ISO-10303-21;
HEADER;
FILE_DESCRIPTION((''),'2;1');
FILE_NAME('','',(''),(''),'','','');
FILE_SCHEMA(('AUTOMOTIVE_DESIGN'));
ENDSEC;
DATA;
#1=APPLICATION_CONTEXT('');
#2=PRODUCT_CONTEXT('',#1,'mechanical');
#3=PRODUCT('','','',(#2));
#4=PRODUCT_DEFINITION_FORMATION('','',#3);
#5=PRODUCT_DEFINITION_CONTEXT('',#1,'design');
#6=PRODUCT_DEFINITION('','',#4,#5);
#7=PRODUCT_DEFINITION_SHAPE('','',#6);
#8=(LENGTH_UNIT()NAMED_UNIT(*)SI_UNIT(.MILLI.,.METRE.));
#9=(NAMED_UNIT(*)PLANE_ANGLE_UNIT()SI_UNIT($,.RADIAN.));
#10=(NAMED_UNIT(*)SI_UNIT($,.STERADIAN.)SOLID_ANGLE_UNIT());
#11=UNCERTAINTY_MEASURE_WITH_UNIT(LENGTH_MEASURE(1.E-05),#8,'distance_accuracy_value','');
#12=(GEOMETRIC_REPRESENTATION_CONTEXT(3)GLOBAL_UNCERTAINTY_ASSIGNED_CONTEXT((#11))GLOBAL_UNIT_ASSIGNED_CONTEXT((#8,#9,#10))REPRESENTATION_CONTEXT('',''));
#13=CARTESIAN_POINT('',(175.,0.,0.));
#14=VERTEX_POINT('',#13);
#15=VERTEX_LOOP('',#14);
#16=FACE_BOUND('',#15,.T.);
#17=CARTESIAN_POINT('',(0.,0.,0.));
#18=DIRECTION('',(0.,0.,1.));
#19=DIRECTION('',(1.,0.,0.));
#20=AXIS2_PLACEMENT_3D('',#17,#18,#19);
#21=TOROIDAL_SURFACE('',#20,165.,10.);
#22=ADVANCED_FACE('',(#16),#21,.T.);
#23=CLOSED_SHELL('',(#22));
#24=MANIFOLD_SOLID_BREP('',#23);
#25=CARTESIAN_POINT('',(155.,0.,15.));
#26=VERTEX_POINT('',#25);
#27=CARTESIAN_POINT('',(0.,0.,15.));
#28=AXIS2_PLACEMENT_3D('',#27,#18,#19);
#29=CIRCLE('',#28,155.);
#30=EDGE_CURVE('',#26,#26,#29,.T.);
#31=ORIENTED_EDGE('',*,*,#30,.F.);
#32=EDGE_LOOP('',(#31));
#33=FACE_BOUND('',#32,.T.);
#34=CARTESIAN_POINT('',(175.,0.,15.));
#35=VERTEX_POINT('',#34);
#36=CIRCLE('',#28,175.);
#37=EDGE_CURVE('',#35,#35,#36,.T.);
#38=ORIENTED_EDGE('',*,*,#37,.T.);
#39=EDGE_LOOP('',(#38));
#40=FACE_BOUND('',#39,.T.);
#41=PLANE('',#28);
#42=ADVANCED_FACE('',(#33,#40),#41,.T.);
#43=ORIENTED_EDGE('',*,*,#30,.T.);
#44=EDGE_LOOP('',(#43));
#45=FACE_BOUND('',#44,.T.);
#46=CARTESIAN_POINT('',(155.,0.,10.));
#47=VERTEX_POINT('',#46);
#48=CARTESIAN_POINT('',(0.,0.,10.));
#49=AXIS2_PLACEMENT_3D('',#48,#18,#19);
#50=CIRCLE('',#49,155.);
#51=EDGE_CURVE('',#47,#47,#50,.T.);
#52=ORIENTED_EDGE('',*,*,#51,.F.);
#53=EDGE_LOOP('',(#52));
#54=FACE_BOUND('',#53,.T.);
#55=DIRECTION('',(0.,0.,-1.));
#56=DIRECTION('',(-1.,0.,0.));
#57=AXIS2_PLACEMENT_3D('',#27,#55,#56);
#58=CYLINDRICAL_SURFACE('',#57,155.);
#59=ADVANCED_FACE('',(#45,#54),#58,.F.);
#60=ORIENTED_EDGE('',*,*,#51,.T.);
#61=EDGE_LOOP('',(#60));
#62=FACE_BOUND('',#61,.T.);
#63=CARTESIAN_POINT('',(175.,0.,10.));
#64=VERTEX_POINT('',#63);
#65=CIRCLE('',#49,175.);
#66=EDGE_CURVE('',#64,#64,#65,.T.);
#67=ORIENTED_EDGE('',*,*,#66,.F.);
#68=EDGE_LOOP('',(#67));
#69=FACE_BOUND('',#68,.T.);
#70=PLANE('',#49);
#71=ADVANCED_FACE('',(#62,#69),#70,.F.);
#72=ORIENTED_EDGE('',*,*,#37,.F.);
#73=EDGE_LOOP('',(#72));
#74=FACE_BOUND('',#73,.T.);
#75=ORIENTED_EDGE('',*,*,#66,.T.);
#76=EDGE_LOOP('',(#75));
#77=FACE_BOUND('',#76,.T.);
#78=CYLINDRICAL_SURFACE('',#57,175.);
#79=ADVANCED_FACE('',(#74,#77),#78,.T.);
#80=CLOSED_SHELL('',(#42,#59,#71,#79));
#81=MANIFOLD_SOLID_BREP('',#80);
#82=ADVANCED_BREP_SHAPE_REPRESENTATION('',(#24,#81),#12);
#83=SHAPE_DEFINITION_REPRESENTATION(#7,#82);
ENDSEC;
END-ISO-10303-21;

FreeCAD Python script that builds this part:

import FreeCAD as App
import Part
import Sketcher
Q = App.Units.Quantity

doc = App.newDocument("Part")
params = doc.addObject("Spreadsheet::Sheet", "Params")
for row, (alias, value) in enumerate([
    ("sketch1_diameter", "20 mm"),
    ("revolution_angle", "360 deg"),
    ("sketch2_diameter", "350 mm"),
    ("sketch2_diameter2", "310 mm"),
    ("pad1_length", "5 mm"),
], start=1):
    params.set(f"A{row}", alias)
    params.set(f"B{row}", "=" + value)
    params.setAlias(f"B{row}", alias)

body = doc.addObject("PartDesign::Body", "Body")

# Sketch on YZ plane
sketch1 = doc.addObject("Sketcher::SketchObject", "Sketch")
body.addObject(sketch1)
sketch1.AttachmentSupport = (doc.YZ_Plane, [""])
sketch1.MapMode = "FlatFace"
sketch1.addGeometry(Part.Circle(App.Vector(165, 0, 0), App.Vector(0, 0, 1), 10), False)
sketch1.addConstraint(Sketcher.Constraint("PointOnObject", 0, 3, -1))
sketch1.addConstraint(Sketcher.Constraint("Diameter", 0, Q("20 mm")))
sketch1.addConstraint(Sketcher.Constraint("DistanceX", -1, 1, 0, 3, Q("165 mm")))
sketch1.setExpression("Constraints[1]", "Params.sketch1_diameter")
revolution = doc.addObject("PartDesign::Revolution", "Revolution")
body.addObject(revolution)
revolution.Profile = sketch1
revolution.ReferenceAxis = (sketch1, ["V_Axis"])
revolution.setExpression("Angle", "Params.revolution_angle")
body2 = doc.addObject("PartDesign::Body", "Body001")

# Sketch on XY plane
sketch2 = doc.addObject("Sketcher::SketchObject", "Sketch001")
body2.addObject(sketch2)
sketch2.AttachmentSupport = (doc.getObject("XY_Plane001"), [""])
sketch2.MapMode = "FlatFace"
sketch2.AttachmentOffset = App.Placement(App.Vector(0, 0, 10), App.Rotation())
sketch2.addGeometry(Part.Circle(App.Vector(0, 0, 0), App.Vector(0, 0, 1), 175), False)
sketch2.addGeometry(Part.Circle(App.Vector(0, 0, 0), App.Vector(0, 0, 1), 155), False)
sketch2.addConstraint(Sketcher.Constraint("Coincident", 0, 3, -1, 1))
sketch2.addConstraint(Sketcher.Constraint("Coincident", 1, 3, -1, 1))
sketch2.addConstraint(Sketcher.Constraint("Diameter", 0, Q("350 mm")))
sketch2.addConstraint(Sketcher.Constraint("Diameter", 1, Q("310 mm")))
sketch2.setExpression("Constraints[2]", "Params.sketch2_diameter")
sketch2.setExpression("Constraints[3]", "Params.sketch2_diameter2")
pad1 = doc.addObject("PartDesign::Pad", "Pad")
body2.addObject(pad1)
pad1.Profile = sketch2
pad1.setExpression("Length", "Params.pad1_length")

doc.recompute()
